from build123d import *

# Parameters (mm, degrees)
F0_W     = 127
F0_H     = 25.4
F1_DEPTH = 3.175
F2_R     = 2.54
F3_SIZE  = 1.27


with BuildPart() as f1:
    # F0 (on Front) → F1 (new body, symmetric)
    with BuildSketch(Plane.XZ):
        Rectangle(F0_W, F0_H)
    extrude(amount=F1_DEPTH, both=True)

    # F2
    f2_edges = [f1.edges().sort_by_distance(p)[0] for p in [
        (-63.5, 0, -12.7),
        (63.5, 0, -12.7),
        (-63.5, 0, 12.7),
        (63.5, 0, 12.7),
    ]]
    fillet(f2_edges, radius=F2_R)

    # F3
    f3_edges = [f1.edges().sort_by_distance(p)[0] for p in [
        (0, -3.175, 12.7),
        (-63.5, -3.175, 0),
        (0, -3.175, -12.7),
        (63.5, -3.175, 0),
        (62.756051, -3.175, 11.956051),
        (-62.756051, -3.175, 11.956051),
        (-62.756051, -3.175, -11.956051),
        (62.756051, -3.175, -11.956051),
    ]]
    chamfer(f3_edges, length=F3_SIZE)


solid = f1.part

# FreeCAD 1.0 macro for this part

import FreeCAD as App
import Part
import Sketcher
from FreeCAD import Vector
Q = App.Units.Quantity


def edges_at(feature, points):
    """Names of the edges that pass closest to the given points."""
    edges = feature.Shape.Edges
    near = lambda p: min(range(len(edges)), key=lambda i: edges[i].distToShape(Part.Vertex(*p))[0])
    return sorted({f"Edge{near(p) + 1}" for p in points})

doc = App.newDocument("Part")
body = doc.addObject("PartDesign::Body", "Body")

# Sketch on XZ plane
sketch1 = doc.addObject("Sketcher::SketchObject", "Sketch")
body.addObject(sketch1)
sketch1.AttachmentSupport = (doc.XZ_Plane, [""])
sketch1.MapMode = "FlatFace"
sketch1.addGeometry([
    Part.LineSegment(Vector(-63.5, 12.7, 0), Vector(-63.5, -12.7, 0)),
    Part.LineSegment(Vector(-63.5, -12.7, 0), Vector(63.5, -12.7, 0)),
    Part.LineSegment(Vector(63.5, -12.7, 0), Vector(63.5, 12.7, 0)),
    Part.LineSegment(Vector(63.5, 12.7, 0), Vector(-63.5, 12.7, 0)),
], False)
sketch1.addConstraint([
    Sketcher.Constraint("Coincident", 0, 2, 1, 1),
    Sketcher.Constraint("Coincident", 1, 2, 2, 1),
    Sketcher.Constraint("Coincident", 2, 2, 3, 1),
    Sketcher.Constraint("Coincident", 3, 2, 0, 1),
    Sketcher.Constraint("Vertical", 0),
    Sketcher.Constraint("Horizontal", 1),
    Sketcher.Constraint("Vertical", 2),
    Sketcher.Constraint("Horizontal", 3),
    Sketcher.Constraint("Symmetric", 0, 2, 2, 2, -1, 1),
    Sketcher.Constraint("DistanceX", 1, 1, 1, 2, Q("5 in")),
    Sketcher.Constraint("DistanceY", 0, 2, 0, 1, Q("1 in")),
])
pad1 = doc.addObject("PartDesign::Pad", "Pad")
body.addObject(pad1)
pad1.Profile = sketch1
pad1.Length = Q("0.25 in")
pad1.Midplane = True
doc.recompute()

fillet = doc.addObject("PartDesign::Fillet", "Fillet")
body.addObject(fillet)
fillet.Base = (pad1, edges_at(pad1, [
    (-63.5, 0, -12.7),
    (63.5, 0, -12.7),
    (-63.5, 0, 12.7),
    (63.5, 0, 12.7),
]))
fillet.Radius = Q("0.1 in")
doc.recompute()

chamfer = doc.addObject("PartDesign::Chamfer", "Chamfer")
body.addObject(chamfer)
chamfer.Base = (fillet, edges_at(fillet, [
    (0, -3.175, 12.7),
    (-63.5, -3.175, 0),
    (0, -3.175, -12.7),
    (63.5, -3.175, 0),
    (62.756, -3.175, 11.956),
    (-62.756, -3.175, 11.956),
    (-62.756, -3.175, -11.956),
    (62.756, -3.175, -11.956),
]))
chamfer.Size = Q("0.05 in")

doc.recompute()
